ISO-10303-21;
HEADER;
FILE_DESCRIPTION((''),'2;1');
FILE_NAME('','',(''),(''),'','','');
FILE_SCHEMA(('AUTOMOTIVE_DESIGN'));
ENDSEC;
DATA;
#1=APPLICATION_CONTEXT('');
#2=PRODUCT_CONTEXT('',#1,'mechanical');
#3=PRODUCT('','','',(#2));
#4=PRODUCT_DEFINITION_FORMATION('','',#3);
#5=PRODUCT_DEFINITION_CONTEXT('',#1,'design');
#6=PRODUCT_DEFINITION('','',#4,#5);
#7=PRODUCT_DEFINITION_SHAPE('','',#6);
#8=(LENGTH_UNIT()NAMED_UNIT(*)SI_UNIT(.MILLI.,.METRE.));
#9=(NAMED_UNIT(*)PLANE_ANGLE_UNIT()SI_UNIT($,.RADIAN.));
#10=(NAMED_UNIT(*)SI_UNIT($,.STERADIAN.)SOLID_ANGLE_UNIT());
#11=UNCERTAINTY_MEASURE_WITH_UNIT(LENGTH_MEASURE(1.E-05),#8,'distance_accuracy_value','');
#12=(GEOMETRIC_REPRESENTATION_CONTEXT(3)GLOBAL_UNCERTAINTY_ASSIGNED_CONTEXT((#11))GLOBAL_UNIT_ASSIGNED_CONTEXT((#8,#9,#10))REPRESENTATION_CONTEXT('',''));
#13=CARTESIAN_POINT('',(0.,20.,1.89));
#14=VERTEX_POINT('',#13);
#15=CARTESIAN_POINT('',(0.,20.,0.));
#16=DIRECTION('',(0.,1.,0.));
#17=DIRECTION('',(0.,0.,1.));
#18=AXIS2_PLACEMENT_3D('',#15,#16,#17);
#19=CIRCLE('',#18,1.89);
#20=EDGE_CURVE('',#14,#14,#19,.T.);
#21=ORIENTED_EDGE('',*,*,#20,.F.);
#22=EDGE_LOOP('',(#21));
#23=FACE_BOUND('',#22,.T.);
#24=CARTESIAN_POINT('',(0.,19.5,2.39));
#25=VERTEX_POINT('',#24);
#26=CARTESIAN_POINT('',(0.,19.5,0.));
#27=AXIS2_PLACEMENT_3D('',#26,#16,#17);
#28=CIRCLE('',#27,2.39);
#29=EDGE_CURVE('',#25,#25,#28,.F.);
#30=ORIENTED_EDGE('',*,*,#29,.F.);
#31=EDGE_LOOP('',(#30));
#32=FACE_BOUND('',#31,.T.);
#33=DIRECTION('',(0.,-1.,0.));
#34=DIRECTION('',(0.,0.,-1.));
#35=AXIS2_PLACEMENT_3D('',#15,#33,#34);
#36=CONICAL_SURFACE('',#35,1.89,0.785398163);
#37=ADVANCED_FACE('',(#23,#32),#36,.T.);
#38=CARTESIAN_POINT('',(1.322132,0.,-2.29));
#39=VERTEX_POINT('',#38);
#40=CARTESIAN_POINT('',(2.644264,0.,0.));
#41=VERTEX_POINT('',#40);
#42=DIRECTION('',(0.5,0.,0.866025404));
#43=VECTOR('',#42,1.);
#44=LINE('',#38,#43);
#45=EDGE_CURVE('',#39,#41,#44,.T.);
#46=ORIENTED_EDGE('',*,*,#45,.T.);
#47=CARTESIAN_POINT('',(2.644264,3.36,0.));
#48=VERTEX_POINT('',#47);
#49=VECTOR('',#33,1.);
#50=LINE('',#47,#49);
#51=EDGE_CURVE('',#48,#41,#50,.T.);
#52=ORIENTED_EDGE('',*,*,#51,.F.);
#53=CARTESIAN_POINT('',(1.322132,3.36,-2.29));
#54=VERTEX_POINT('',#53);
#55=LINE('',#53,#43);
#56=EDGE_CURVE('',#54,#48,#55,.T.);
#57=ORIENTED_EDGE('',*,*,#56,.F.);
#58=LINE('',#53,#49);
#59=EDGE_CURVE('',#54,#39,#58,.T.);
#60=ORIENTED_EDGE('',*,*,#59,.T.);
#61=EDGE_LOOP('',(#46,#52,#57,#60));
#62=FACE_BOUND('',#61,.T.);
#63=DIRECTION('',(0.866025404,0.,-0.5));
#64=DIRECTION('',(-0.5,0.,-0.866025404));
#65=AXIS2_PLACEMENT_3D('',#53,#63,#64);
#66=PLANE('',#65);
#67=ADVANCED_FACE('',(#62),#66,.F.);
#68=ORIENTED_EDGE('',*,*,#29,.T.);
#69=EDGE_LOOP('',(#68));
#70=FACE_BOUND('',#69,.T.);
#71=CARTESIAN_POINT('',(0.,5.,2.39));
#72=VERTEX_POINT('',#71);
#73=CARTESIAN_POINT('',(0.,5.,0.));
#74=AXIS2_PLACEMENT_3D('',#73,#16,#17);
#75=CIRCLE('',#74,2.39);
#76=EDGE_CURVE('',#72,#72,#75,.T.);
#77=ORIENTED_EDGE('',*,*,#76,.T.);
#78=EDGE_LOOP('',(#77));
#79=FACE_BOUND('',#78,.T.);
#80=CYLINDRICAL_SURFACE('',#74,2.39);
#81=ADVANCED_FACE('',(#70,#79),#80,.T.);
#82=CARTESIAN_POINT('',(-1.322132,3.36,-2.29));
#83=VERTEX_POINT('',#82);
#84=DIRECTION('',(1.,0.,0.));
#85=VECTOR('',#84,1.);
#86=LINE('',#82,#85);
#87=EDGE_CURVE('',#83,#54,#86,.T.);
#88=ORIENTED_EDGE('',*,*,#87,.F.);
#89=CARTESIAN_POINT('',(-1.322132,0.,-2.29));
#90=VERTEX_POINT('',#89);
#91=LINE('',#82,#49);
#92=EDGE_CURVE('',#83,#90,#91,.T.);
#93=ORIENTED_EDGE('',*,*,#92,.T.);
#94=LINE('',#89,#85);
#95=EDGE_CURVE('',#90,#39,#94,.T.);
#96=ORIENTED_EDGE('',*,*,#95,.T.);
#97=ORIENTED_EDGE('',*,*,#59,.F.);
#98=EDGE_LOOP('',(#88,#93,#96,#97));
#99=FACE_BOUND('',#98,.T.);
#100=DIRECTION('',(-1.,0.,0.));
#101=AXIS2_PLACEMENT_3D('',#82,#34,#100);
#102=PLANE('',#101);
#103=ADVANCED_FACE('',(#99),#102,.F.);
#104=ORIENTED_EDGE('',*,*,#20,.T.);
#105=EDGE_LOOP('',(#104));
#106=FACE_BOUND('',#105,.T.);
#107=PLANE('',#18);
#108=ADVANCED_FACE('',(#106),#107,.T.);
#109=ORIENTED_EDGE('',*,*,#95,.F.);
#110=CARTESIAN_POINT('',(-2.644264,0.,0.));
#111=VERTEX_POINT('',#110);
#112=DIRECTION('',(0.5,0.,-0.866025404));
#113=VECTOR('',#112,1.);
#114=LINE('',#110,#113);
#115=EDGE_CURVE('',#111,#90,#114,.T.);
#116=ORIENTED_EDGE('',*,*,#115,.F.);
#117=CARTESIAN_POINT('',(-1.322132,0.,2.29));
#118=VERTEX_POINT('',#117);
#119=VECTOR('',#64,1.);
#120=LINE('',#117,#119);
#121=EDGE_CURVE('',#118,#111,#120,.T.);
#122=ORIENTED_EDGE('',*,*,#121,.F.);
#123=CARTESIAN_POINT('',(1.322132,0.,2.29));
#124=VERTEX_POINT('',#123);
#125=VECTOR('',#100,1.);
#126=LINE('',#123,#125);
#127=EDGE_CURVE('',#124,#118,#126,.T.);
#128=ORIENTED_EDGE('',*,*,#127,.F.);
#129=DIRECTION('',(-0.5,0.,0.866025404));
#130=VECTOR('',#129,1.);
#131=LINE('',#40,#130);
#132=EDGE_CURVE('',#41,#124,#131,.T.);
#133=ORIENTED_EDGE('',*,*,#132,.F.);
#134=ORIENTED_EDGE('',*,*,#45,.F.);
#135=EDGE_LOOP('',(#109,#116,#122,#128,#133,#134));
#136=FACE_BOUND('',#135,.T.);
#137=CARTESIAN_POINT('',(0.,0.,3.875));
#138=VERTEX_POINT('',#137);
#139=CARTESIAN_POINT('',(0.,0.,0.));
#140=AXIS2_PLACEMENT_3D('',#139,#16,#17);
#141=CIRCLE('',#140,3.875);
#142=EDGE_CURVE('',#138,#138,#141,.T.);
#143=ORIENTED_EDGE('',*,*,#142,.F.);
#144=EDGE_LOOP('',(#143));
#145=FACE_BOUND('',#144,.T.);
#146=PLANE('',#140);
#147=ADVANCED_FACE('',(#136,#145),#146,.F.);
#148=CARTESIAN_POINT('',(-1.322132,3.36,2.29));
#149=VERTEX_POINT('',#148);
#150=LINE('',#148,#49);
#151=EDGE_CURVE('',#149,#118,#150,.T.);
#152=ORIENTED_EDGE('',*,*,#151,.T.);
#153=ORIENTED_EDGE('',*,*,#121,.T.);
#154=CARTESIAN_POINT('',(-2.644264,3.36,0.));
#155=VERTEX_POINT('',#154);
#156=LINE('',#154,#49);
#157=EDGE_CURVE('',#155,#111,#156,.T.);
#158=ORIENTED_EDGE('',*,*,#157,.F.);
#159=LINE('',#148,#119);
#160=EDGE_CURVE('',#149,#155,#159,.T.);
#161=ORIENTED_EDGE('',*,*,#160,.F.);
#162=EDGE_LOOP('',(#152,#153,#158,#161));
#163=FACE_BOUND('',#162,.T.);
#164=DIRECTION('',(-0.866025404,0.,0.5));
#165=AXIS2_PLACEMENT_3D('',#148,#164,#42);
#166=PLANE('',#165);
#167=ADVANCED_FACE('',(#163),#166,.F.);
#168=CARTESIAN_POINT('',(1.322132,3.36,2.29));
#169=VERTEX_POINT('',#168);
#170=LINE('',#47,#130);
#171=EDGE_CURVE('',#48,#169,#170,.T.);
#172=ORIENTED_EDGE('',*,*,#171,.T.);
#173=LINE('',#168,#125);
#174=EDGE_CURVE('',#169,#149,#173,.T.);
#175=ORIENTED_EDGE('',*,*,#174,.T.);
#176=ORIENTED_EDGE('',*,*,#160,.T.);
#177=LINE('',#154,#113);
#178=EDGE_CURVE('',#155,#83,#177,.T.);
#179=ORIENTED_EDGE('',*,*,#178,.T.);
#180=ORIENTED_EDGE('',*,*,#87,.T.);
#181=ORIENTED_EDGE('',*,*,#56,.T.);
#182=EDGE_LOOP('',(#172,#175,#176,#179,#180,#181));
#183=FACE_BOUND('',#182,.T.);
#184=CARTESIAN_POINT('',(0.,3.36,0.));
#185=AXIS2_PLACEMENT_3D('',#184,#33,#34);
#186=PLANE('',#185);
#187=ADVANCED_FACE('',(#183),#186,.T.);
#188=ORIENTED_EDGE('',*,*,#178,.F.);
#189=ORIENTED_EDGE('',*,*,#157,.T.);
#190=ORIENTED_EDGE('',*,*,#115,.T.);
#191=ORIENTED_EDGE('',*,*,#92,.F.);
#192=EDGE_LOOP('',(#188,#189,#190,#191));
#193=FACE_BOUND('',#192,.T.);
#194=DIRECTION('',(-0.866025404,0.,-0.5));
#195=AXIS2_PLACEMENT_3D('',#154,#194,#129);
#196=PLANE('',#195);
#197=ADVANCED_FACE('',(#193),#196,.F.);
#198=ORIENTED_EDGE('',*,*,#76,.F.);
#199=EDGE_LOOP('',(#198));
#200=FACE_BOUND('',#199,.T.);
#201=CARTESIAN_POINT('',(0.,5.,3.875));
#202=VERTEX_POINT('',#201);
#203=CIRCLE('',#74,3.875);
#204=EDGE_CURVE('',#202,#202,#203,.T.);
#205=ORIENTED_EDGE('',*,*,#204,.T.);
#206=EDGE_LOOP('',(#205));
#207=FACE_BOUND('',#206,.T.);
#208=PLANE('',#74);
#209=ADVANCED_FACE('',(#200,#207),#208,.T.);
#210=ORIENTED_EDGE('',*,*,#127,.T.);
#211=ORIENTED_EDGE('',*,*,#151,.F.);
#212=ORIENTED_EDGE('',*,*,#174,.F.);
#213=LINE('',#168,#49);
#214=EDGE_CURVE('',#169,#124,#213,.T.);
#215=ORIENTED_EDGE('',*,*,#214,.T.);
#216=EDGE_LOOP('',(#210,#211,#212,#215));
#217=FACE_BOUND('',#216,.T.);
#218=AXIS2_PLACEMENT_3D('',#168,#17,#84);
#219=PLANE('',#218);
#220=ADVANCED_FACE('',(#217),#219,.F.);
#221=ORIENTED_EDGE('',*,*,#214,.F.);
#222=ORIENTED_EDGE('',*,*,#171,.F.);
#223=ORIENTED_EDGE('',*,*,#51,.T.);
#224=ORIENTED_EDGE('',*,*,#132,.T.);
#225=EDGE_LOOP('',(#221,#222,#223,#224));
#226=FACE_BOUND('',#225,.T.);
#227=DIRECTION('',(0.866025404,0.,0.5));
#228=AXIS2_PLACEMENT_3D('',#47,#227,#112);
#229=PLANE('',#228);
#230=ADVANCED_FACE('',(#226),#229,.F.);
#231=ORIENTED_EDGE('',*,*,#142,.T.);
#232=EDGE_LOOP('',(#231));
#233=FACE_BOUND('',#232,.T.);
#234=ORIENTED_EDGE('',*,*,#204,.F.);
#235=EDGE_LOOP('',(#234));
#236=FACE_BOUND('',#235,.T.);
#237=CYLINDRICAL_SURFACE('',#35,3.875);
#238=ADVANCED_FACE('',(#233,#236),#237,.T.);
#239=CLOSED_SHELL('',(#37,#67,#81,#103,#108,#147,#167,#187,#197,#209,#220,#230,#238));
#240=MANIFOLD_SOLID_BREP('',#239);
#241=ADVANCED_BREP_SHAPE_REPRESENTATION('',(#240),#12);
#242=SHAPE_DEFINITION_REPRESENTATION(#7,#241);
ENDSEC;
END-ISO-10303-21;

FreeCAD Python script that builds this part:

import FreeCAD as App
import Part
import Sketcher
Q = App.Units.Quantity


def edges_at(feature, points):
    """Names of the edges that pass closest to the given points."""
    edges = feature.Shape.Edges
    near = lambda p: min(range(len(edges)), key=lambda i: edges[i].distToShape(Part.Vertex(*p))[0])
    return sorted({f"Edge{near(p) + 1}" for p in points})

doc = App.newDocument("Part")
body = doc.addObject("PartDesign::Body", "Body")

sketch1 = body.newObject("Sketcher::SketchObject", "Sketch")
sketch1.AttachmentSupport = (doc.getObject("XZ_Plane"), [""])
sketch1.MapMode = "FlatFace"
sketch1.addGeometry(Part.Circle(App.Vector(0, 0, 0), App.Vector(0, 0, 1), 3.9), False)
sketch1.addConstraint([
    Sketcher.Constraint("Coincident", 0, 3, -1, 1),
    Sketcher.Constraint("Diameter", 0, 7.75),
])
pad1 = body.newObject("PartDesign::Pad", "Pad")
pad1.Profile = sketch1
pad1.Length = 20
pad1.Reversed = True

sketch2 = body.newObject("Sketcher::SketchObject", "Sketch001")
sketch2.AttachmentSupport = (doc.getObject("XZ_Plane"), [""])
sketch2.MapMode = "FlatFace"
sketch2.AttachmentOffset = App.Placement(App.Vector(0, 0, -20), App.Rotation())
sketch2.addGeometry([
    Part.LineSegment(App.Vector(-7.2, -7.2, 0), App.Vector(-7.2, 7.2, 0)),
    Part.LineSegment(App.Vector(-7.2, 7.2, 0), App.Vector(7.2, 7.2, 0)),
    Part.LineSegment(App.Vector(7.2, 7.2, 0), App.Vector(7.2, -7.2, 0)),
    Part.LineSegment(App.Vector(7.2, -7.2, 0), App.Vector(-7.2, -7.2, 0)),
    Part.Circle(App.Vector(0, 0, 0), App.Vector(0, 0, 1), 2.4),
], False)
sketch2.addConstraint([
    Sketcher.Constraint("Coincident", 0, 2, 1, 1),
    Sketcher.Constraint("Coincident", 1, 2, 2, 1),
    Sketcher.Constraint("Coincident", 2, 2, 3, 1),
    Sketcher.Constraint("Coincident", 3, 2, 0, 1),
    Sketcher.Constraint("Vertical", 0),
    Sketcher.Constraint("Horizontal", 1),
    Sketcher.Constraint("Vertical", 2),
    Sketcher.Constraint("Horizontal", 3),
    Sketcher.Constraint("Coincident", 4, 3, -1, 1),
    Sketcher.Constraint("Symmetric", 0, 2, 2, 2, -1, 1),
    Sketcher.Constraint("Equal", 3, 0),
    Sketcher.Constraint("Diameter", 4, 4.78),
    Sketcher.Constraint("DistanceX", 1, 1, 1, 2, 14.312),
])
pocket1 = body.newObject("PartDesign::Pocket", "Pocket")
pocket1.Profile = sketch2
pocket1.Length = 15
pocket1.Reversed = True
doc.recompute()

chamfer = body.newObject("PartDesign::Chamfer", "Chamfer")
chamfer.Base = (pocket1, edges_at(pocket1, [(0, 20, -2.39)]))
chamfer.Size = 0.5

sketch3 = body.newObject("Sketcher::SketchObject", "Sketch002")
sketch3.AttachmentSupport = (doc.getObject("XZ_Plane"), [""])
sketch3.MapMode = "FlatFace"
sketch3.addGeometry([
    Part.LineSegment(App.Vector(2.6, 0, 0), App.Vector(1.3, 2.3, 0)),
    Part.LineSegment(App.Vector(1.3, 2.3, 0), App.Vector(-1.3, 2.3, 0)),
    Part.LineSegment(App.Vector(-1.3, 2.3, 0), App.Vector(-2.6, 0, 0)),
    Part.LineSegment(App.Vector(-2.6, 0, 0), App.Vector(-1.3, -2.3, 0)),
    Part.LineSegment(App.Vector(-1.3, -2.3, 0), App.Vector(1.3, -2.3, 0)),
    Part.LineSegment(App.Vector(1.3, -2.3, 0), App.Vector(2.6, 0, 0)),
], False)
sketch3.addConstraint([
    Sketcher.Constraint("Coincident", 0, 2, 1, 1),
    Sketcher.Constraint("Coincident", 1, 2, 2, 1),
    Sketcher.Constraint("Coincident", 2, 2, 3, 1),
    Sketcher.Constraint("Coincident", 3, 2, 4, 1),
    Sketcher.Constraint("Coincident", 4, 2, 5, 1),
    Sketcher.Constraint("Coincident", 5, 2, 0, 1),
    Sketcher.Constraint("Horizontal", 1),
    Sketcher.Constraint("Horizontal", 4),
    Sketcher.Constraint("Symmetric", 0, 2, 3, 2, -1, 1),
    Sketcher.Constraint("Symmetric", 2, 2, 5, 2, -1, 1),
    Sketcher.Constraint("PointOnObject", 2, 2, -1),
    Sketcher.Constraint("Parallel", 2, 5),
    Sketcher.Constraint("Vertical", 1, 2, 3, 2),
    Sketcher.Constraint("Angle", 0, Q("120 deg")),
    Sketcher.Constraint("DistanceY", -1, 1, 0, 2, 2.29),
    Sketcher.Constraint("DistanceX", 1, 2, 1, 1, 2.644264),
])
pocket2 = body.newObject("PartDesign::Pocket", "Pocket001")
pocket2.Profile = sketch3
pocket2.Length = 3.36

doc.recompute()
